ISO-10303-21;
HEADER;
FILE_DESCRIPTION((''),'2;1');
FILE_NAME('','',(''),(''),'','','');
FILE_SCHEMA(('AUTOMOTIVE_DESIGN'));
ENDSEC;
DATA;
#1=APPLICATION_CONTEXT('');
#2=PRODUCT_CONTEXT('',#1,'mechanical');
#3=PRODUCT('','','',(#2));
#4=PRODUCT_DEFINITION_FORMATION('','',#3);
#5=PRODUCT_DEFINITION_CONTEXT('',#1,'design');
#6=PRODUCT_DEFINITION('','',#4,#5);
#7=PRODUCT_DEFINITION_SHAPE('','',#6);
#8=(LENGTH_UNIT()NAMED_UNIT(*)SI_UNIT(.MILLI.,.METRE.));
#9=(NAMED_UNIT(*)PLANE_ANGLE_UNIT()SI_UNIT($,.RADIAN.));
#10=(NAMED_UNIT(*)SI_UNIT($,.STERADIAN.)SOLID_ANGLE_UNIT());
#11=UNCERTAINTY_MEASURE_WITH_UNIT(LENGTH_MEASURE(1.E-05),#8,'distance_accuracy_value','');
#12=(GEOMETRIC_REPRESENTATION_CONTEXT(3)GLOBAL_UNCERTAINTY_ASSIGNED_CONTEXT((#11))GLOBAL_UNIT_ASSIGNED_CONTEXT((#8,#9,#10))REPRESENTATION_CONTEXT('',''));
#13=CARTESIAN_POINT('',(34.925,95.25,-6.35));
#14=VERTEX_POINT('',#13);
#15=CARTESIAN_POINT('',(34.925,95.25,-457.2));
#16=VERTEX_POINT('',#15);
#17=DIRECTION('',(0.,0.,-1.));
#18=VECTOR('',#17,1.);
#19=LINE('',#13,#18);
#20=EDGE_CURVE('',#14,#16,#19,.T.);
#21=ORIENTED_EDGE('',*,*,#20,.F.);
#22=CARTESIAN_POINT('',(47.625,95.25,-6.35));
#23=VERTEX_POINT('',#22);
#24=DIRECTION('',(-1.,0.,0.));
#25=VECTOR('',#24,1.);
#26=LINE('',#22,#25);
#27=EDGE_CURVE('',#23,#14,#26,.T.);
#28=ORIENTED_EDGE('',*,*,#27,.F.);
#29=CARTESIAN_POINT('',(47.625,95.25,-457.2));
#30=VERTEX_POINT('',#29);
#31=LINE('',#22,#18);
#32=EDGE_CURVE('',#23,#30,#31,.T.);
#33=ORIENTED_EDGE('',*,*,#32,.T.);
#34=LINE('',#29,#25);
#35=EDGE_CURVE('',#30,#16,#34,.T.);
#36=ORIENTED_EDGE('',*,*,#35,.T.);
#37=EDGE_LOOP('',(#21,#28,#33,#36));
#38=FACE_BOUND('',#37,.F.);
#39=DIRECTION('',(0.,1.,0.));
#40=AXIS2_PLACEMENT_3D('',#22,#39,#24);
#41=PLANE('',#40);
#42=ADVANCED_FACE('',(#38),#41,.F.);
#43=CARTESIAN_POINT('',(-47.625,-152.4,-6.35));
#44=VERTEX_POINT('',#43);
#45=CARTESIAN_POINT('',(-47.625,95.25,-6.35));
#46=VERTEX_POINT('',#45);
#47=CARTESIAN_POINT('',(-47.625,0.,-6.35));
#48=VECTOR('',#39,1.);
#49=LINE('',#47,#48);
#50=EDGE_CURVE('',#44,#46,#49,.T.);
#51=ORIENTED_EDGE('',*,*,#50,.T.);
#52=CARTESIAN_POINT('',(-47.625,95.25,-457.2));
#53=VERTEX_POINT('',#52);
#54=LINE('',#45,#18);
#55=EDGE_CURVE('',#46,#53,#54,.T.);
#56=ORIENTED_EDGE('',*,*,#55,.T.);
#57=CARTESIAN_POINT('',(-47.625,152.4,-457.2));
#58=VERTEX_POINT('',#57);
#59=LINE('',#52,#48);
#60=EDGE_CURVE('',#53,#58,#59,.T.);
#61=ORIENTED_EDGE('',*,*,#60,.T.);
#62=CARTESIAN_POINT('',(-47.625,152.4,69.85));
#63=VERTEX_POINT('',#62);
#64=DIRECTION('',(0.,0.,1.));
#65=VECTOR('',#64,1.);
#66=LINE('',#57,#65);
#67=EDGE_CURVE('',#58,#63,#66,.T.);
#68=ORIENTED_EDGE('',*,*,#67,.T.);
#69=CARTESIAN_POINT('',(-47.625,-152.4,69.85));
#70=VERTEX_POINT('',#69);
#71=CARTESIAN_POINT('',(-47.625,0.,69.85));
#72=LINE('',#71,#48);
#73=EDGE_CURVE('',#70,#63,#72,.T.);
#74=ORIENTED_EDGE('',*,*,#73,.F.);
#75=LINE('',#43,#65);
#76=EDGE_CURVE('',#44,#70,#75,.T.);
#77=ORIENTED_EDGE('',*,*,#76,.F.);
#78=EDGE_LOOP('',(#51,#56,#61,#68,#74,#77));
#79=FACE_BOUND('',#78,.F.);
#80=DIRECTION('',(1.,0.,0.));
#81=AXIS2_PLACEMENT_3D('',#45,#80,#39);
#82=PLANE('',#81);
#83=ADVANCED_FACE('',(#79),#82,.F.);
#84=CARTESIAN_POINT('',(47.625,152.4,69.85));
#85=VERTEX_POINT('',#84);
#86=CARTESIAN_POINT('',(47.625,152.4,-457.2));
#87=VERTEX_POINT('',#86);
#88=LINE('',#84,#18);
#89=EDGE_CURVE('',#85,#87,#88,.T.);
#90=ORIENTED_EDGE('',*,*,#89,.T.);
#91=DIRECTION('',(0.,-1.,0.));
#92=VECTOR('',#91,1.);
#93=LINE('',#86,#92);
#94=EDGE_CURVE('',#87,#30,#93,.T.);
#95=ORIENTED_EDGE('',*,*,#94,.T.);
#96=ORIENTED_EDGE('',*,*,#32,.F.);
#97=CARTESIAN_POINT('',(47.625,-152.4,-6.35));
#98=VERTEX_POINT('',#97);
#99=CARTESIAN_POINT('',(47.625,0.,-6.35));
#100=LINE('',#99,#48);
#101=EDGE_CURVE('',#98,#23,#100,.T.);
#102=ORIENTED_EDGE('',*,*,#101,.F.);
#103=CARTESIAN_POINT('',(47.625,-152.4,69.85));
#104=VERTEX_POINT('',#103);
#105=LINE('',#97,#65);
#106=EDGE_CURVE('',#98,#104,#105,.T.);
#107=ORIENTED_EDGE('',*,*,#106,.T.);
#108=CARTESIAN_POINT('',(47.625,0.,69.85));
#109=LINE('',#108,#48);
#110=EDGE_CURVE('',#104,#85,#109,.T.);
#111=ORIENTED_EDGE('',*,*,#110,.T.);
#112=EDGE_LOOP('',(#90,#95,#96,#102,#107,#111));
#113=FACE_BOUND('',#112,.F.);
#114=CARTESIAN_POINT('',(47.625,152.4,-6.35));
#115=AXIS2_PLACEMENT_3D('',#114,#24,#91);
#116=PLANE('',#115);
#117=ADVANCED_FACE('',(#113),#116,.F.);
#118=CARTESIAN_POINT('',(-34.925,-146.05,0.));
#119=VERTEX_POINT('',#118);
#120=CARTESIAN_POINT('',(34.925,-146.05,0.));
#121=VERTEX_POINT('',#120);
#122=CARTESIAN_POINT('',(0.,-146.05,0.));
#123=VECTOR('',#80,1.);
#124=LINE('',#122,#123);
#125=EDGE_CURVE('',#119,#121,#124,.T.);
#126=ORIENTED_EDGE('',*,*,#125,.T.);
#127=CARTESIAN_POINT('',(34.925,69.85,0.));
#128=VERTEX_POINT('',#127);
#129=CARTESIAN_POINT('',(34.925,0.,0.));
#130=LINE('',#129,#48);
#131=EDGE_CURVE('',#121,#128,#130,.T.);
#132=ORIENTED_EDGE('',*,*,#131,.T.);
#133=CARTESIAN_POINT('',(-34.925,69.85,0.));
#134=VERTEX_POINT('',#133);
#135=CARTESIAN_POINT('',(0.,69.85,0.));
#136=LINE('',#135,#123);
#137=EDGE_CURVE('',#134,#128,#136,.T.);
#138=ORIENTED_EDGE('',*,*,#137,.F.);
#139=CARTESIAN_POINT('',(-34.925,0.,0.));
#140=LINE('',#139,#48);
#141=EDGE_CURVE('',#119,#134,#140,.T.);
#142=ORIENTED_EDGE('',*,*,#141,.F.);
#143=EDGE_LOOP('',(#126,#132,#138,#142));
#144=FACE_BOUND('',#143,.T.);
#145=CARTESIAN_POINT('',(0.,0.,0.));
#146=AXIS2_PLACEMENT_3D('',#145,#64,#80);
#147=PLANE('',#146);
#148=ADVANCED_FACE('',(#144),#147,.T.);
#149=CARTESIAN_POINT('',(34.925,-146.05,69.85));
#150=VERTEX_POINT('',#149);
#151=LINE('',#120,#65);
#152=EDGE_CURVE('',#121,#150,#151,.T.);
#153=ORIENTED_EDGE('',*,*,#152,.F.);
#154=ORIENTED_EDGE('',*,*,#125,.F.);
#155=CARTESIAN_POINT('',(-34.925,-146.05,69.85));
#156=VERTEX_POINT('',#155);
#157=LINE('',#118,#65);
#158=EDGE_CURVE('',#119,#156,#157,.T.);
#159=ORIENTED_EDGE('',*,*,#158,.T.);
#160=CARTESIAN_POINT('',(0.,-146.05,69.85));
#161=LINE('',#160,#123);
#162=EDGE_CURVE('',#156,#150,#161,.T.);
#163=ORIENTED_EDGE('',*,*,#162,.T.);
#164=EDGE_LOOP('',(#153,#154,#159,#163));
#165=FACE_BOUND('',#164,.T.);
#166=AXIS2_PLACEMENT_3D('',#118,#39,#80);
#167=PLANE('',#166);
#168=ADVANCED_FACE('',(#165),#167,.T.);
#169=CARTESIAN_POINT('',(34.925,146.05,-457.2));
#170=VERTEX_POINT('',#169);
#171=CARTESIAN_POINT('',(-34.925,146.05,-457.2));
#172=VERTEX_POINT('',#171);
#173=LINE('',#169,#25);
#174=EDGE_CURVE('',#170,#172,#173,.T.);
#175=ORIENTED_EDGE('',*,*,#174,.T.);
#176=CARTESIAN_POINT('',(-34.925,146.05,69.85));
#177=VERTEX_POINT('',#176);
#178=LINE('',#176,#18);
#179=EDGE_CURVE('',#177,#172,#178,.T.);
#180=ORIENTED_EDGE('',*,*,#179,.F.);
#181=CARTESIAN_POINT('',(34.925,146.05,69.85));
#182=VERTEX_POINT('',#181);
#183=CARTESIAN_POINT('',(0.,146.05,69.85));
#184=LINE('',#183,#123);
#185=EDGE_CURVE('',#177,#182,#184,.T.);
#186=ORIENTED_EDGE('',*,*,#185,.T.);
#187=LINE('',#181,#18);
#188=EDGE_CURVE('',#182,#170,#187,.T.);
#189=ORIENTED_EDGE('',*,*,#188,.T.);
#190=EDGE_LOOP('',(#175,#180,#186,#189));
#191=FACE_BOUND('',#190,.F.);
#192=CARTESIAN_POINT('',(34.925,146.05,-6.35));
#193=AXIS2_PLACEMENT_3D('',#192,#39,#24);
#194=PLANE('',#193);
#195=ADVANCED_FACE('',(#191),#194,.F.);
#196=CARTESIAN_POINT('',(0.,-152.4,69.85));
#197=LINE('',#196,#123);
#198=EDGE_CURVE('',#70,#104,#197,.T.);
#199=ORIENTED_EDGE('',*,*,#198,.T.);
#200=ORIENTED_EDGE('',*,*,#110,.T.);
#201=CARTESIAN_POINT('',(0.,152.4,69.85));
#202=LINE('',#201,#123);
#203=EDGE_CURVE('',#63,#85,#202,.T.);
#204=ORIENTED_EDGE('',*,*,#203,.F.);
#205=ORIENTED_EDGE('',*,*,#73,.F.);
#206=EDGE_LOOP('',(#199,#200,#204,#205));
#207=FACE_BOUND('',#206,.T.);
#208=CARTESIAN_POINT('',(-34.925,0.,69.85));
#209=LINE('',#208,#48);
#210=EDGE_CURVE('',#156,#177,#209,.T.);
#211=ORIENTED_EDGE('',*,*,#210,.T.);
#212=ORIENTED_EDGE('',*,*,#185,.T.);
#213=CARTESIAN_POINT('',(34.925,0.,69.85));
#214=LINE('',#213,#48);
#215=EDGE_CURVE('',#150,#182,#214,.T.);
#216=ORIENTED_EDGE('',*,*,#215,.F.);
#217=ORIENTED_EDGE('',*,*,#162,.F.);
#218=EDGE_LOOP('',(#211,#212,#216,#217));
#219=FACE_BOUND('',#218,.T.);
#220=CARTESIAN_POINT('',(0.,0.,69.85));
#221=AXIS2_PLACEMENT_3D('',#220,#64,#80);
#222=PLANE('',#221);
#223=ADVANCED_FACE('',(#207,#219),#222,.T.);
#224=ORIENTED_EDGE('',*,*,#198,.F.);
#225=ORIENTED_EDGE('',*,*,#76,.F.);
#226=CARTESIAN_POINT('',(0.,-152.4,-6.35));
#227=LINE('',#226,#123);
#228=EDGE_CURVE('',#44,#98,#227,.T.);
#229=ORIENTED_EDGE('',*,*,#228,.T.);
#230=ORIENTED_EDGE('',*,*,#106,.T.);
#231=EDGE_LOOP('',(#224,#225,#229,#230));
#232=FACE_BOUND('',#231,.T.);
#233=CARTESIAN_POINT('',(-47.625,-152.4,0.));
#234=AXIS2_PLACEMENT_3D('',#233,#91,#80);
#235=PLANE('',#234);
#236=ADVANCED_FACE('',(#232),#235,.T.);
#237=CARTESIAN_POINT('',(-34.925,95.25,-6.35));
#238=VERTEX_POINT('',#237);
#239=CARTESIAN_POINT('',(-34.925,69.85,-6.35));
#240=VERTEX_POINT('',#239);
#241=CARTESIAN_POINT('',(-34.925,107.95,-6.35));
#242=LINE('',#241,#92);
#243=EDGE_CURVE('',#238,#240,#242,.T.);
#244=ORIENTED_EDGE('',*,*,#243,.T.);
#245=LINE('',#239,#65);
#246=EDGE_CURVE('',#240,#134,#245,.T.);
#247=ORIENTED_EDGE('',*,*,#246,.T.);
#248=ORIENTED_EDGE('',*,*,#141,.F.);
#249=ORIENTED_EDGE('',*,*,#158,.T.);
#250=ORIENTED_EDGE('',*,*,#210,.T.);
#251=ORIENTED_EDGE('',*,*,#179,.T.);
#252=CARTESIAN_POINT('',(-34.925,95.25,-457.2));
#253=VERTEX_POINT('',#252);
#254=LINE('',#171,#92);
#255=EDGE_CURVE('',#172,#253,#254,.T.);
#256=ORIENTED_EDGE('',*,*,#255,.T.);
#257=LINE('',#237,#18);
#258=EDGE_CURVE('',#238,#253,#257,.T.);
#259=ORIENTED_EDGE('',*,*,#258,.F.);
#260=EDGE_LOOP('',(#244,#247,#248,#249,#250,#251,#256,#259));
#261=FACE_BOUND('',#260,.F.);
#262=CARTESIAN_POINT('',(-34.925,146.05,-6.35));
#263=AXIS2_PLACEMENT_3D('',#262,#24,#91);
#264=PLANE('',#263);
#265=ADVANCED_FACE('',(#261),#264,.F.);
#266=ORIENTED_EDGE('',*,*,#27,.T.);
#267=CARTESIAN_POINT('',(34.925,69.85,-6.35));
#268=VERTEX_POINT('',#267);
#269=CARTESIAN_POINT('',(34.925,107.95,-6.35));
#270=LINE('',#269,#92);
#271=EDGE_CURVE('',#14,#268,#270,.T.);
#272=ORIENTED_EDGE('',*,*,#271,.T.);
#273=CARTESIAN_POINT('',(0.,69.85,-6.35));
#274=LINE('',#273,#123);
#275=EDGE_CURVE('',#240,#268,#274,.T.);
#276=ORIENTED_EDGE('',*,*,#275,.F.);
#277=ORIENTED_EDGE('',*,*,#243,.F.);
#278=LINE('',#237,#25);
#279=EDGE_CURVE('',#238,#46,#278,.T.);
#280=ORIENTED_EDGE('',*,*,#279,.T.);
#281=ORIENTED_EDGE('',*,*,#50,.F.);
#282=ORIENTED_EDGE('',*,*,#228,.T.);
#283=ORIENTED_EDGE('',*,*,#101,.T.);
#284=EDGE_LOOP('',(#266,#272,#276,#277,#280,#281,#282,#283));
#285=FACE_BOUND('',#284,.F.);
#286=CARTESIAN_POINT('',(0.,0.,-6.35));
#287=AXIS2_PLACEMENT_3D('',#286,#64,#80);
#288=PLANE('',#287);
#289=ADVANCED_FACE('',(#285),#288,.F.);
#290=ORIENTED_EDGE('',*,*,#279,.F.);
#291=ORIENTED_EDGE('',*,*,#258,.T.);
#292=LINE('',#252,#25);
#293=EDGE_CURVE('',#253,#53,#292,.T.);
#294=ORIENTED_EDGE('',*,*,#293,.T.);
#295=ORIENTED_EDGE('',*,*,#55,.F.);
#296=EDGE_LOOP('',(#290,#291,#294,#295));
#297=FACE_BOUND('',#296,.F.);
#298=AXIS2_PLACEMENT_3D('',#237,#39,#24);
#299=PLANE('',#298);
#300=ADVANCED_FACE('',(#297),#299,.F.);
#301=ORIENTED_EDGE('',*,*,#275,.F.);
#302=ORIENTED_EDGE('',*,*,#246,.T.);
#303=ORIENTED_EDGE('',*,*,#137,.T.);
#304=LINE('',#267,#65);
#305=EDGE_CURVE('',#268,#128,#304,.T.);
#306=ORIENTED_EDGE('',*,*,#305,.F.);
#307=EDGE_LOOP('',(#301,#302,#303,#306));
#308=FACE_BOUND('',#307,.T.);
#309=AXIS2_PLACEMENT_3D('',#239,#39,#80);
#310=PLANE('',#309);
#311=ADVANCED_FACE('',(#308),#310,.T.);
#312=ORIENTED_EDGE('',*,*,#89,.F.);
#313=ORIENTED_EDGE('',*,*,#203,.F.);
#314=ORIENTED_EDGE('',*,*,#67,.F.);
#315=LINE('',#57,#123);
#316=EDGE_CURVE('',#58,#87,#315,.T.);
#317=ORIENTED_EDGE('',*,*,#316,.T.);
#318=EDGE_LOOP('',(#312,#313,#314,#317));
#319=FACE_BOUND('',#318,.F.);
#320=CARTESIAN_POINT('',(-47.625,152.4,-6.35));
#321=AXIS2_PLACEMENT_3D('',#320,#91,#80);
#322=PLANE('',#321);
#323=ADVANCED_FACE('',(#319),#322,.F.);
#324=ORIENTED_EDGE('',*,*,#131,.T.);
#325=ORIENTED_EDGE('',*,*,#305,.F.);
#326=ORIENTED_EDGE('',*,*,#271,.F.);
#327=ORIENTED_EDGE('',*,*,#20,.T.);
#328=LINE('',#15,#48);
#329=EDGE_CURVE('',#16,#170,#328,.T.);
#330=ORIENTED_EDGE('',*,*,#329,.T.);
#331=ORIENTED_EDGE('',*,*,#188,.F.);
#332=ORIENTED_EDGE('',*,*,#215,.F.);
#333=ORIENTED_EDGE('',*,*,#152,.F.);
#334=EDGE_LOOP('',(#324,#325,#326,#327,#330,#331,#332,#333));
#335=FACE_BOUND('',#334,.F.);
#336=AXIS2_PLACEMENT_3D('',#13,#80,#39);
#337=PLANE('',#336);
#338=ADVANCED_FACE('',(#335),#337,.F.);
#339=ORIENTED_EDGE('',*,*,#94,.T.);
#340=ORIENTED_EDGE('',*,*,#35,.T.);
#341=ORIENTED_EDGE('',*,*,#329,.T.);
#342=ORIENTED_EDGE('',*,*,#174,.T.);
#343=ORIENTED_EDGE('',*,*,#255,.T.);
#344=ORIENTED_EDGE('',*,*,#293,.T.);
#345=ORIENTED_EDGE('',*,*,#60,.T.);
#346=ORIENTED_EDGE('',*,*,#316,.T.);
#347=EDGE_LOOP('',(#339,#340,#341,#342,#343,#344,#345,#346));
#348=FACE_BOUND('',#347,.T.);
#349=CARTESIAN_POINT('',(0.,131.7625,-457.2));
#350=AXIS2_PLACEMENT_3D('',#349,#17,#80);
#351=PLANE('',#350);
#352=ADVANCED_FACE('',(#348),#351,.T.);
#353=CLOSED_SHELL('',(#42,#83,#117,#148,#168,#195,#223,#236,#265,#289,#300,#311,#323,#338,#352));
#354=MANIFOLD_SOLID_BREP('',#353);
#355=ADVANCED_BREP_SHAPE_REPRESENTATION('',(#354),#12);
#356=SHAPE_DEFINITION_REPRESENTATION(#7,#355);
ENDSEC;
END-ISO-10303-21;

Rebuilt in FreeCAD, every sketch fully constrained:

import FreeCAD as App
import Part
import Sketcher
Q = App.Units.Quantity

doc = App.newDocument("Part")
body = doc.addObject("PartDesign::Body", "Body")

sketch1 = doc.addObject("Sketcher::SketchObject", "Sketch")
body.addObject(sketch1)
sketch1.AttachmentSupport = (doc.XY_Plane, [""])
sketch1.MapMode = "FlatFace"
sketch1.addGeometry([
    Part.LineSegment(App.Vector(-47.625, 152.4, 0), App.Vector(-47.625, -152.4, 0)),
    Part.LineSegment(App.Vector(-47.625, -152.4, 0), App.Vector(47.625, -152.4, 0)),
    Part.LineSegment(App.Vector(47.625, -152.4, 0), App.Vector(47.625, 152.4, 0)),
    Part.LineSegment(App.Vector(47.625, 152.4, 0), App.Vector(-47.625, 152.4, 0)),
    Part.LineSegment(App.Vector(34.925, -146.05, 0), App.Vector(-34.925, -146.05, 0)),
    Part.LineSegment(App.Vector(-34.925, -146.05, 0), App.Vector(-34.925, 146.05, 0)),
    Part.LineSegment(App.Vector(-34.925, 146.05, 0), App.Vector(34.925, 146.05, 0)),
    Part.LineSegment(App.Vector(34.925, 146.05, 0), App.Vector(34.925, -146.05, 0)),
], False)
sketch1.addConstraint([
    Sketcher.Constraint("Coincident", 0, 2, 1, 1),
    Sketcher.Constraint("Coincident", 1, 2, 2, 1),
    Sketcher.Constraint("Coincident", 2, 2, 3, 1),
    Sketcher.Constraint("Coincident", 3, 2, 0, 1),
    Sketcher.Constraint("Coincident", 4, 2, 5, 1),
    Sketcher.Constraint("Coincident", 5, 2, 6, 1),
    Sketcher.Constraint("Coincident", 6, 2, 7, 1),
    Sketcher.Constraint("Coincident", 7, 2, 4, 1),
    Sketcher.Constraint("Vertical", 0),
    Sketcher.Constraint("Horizontal", 1),
    Sketcher.Constraint("Vertical", 2),
    Sketcher.Constraint("Horizontal", 3),
    Sketcher.Constraint("Horizontal", 4),
    Sketcher.Constraint("Vertical", 5),
    Sketcher.Constraint("Horizontal", 6),
    Sketcher.Constraint("Vertical", 7),
    Sketcher.Constraint("Symmetric", 0, 2, 2, 2, -1, 1),
    Sketcher.Constraint("Symmetric", 4, 2, 6, 2, -1, 1),
    Sketcher.Constraint("DistanceY", 0, 2, 0, 1, Q("12 in")),
    Sketcher.Constraint("DistanceY", 5, 1, 5, 2, Q("11.5 in")),
    Sketcher.Constraint("DistanceX", 1, 1, 1, 2, Q("3.75 in")),
    Sketcher.Constraint("DistanceX", 4, 2, 4, 1, Q("2.75 in")),
])
pad1 = doc.addObject("PartDesign::Pad", "Pad")
body.addObject(pad1)
pad1.Profile = sketch1
pad1.Length = Q("2.75 in")

sketch2 = doc.addObject("Sketcher::SketchObject", "Sketch001")
body.addObject(sketch2)
sketch2.AttachmentSupport = (doc.XY_Plane, [""])
sketch2.MapMode = "FlatFace"
sketch2.addGeometry([
    Part.LineSegment(App.Vector(-47.625, 152.4, 0), App.Vector(-47.625, -152.4, 0)),
    Part.LineSegment(App.Vector(-47.625, -152.4, 0), App.Vector(47.625, -152.4, 0)),
    Part.LineSegment(App.Vector(47.625, -152.4, 0), App.Vector(47.625, 152.4, 0)),
    Part.LineSegment(App.Vector(47.625, 152.4, 0), App.Vector(-47.625, 152.4, 0)),
], False)
sketch2.addConstraint([
    Sketcher.Constraint("Coincident", 0, 2, 1, 1),
    Sketcher.Constraint("Coincident", 1, 2, 2, 1),
    Sketcher.Constraint("Coincident", 2, 2, 3, 1),
    Sketcher.Constraint("Coincident", 3, 2, 0, 1),
    Sketcher.Constraint("Vertical", 0),
    Sketcher.Constraint("Horizontal", 1),
    Sketcher.Constraint("Vertical", 2),
    Sketcher.Constraint("Horizontal", 3),
    Sketcher.Constraint("Symmetric", 0, 2, 2, 2, -1, 1),
    Sketcher.Constraint("DistanceY", 0, 2, 0, 1, Q("12 in")),
    Sketcher.Constraint("DistanceX", 1, 1, 1, 2, Q("3.75 in")),
])
pad2 = doc.addObject("PartDesign::Pad", "Pad001")
body.addObject(pad2)
pad2.Profile = sketch2
pad2.Length = Q("0.25 in")
pad2.Reversed = True

sketch3 = doc.addObject("Sketcher::SketchObject", "Sketch002")
body.addObject(sketch3)
sketch3.AttachmentSupport = (doc.XY_Plane, [""])
sketch3.MapMode = "FlatFace"
sketch3.AttachmentOffset = App.Placement(App.Vector(0, 0, -0.25 * 25.4), App.Rotation())
sketch3.addGeometry([
    Part.LineSegment(App.Vector(-34.925, 69.85, 0), App.Vector(-34.925, 146.05, 0)),
    Part.LineSegment(App.Vector(-34.925, 146.05, 0), App.Vector(34.925, 146.05, 0)),
    Part.LineSegment(App.Vector(34.925, 146.05, 0), App.Vector(34.925, 69.85, 0)),
    Part.LineSegment(App.Vector(34.925, 69.85, 0), App.Vector(-34.925, 69.85, 0)),
], False)
sketch3.addConstraint([
    Sketcher.Constraint("Coincident", 0, 2, 1, 1),
    Sketcher.Constraint("Coincident", 1, 2, 2, 1),
    Sketcher.Constraint("Coincident", 2, 2, 3, 1),
    Sketcher.Constraint("Coincident", 3, 2, 0, 1),
    Sketcher.Constraint("Vertical", 0),
    Sketcher.Constraint("Horizontal", 1),
    Sketcher.Constraint("Vertical", 2),
    Sketcher.Constraint("Horizontal", 3),
    Sketcher.Constraint("DistanceY", 0, 1, 0, 2, Q("3 in")),
    Sketcher.Constraint("DistanceX", 1, 1, 1, 2, Q("2.75 in")),
    Sketcher.Constraint("DistanceY", -1, 1, 0, 2, Q("5.75 in")),
    Sketcher.Constraint("DistanceX", 0, 2, -1, 1, Q("1.375 in")),
])
pocket1 = doc.addObject("PartDesign::Pocket", "Pocket")
body.addObject(pocket1)
pocket1.Profile = sketch3
pocket1.Length = Q("0.25 in")
pocket1.Reversed = True

sketch4 = doc.addObject("Sketcher::SketchObject", "Sketch003")
body.addObject(sketch4)
sketch4.AttachmentSupport = (doc.XY_Plane, [""])
sketch4.MapMode = "FlatFace"
sketch4.AttachmentOffset = App.Placement(App.Vector(0, 0, -0.25 * 25.4), App.Rotation())
sketch4.addGeometry([
    Part.LineSegment(App.Vector(-47.625, 152.4, 0), App.Vector(47.625, 152.4, 0)),
    Part.LineSegment(App.Vector(47.625, 152.4, 0), App.Vector(47.625, 95.25, 0)),
    Part.LineSegment(App.Vector(47.625, 95.25, 0), App.Vector(34.925, 95.25, 0)),
    Part.LineSegment(App.Vector(34.925, 95.25, 0), App.Vector(34.925, 146.05, 0)),
    Part.LineSegment(App.Vector(34.925, 146.05, 0), App.Vector(-34.925, 146.05, 0)),
    Part.LineSegment(App.Vector(-34.925, 146.05, 0), App.Vector(-34.925, 95.25, 0)),
    Part.LineSegment(App.Vector(-34.925, 95.25, 0), App.Vector(-47.625, 95.25, 0)),
    Part.LineSegment(App.Vector(-47.625, 95.25, 0), App.Vector(-47.625, 152.4, 0)),
], False)
sketch4.addConstraint([
    Sketcher.Constraint("Coincident", 0, 2, 1, 1),
    Sketcher.Constraint("Coincident", 1, 2, 2, 1),
    Sketcher.Constraint("Coincident", 2, 2, 3, 1),
    Sketcher.Constraint("Coincident", 3, 2, 4, 1),
    Sketcher.Constraint("Coincident", 4, 2, 5, 1),
    Sketcher.Constraint("Coincident", 5, 2, 6, 1),
    Sketcher.Constraint("Coincident", 6, 2, 7, 1),
    Sketcher.Constraint("Coincident", 7, 2, 0, 1),
    Sketcher.Constraint("Horizontal", 0),
    Sketcher.Constraint("Vertical", 1),
    Sketcher.Constraint("Horizontal", 2),
    Sketcher.Constraint("Vertical", 3),
    Sketcher.Constraint("Horizontal", 4),
    Sketcher.Constraint("Vertical", 5),
    Sketcher.Constraint("Horizontal", 6),
    Sketcher.Constraint("Vertical", 7),
    Sketcher.Constraint("Symmetric", 2, 2, 5, 2, -2),
    Sketcher.Constraint("Equal", 2, 6),
    Sketcher.Constraint("DistanceY", 3, 1, 3, 2, Q("2 in")),
    Sketcher.Constraint("DistanceX", 2, 2, 2, 1, Q("0.5 in")),
    Sketcher.Constraint("DistanceY", -1, 1, 0, 2, Q("6 in")),
    Sketcher.Constraint("DistanceX", 0, 1, 0, 2, Q("3.75 in")),
    Sketcher.Constraint("DistanceY", 1, 2, 1, 1, Q("2.25 in")),
])
pad3 = doc.addObject("PartDesign::Pad", "Pad002")
body.addObject(pad3)
pad3.Profile = sketch4
pad3.Length = Q("17.75 in")
pad3.Reversed = True

doc.recompute()
